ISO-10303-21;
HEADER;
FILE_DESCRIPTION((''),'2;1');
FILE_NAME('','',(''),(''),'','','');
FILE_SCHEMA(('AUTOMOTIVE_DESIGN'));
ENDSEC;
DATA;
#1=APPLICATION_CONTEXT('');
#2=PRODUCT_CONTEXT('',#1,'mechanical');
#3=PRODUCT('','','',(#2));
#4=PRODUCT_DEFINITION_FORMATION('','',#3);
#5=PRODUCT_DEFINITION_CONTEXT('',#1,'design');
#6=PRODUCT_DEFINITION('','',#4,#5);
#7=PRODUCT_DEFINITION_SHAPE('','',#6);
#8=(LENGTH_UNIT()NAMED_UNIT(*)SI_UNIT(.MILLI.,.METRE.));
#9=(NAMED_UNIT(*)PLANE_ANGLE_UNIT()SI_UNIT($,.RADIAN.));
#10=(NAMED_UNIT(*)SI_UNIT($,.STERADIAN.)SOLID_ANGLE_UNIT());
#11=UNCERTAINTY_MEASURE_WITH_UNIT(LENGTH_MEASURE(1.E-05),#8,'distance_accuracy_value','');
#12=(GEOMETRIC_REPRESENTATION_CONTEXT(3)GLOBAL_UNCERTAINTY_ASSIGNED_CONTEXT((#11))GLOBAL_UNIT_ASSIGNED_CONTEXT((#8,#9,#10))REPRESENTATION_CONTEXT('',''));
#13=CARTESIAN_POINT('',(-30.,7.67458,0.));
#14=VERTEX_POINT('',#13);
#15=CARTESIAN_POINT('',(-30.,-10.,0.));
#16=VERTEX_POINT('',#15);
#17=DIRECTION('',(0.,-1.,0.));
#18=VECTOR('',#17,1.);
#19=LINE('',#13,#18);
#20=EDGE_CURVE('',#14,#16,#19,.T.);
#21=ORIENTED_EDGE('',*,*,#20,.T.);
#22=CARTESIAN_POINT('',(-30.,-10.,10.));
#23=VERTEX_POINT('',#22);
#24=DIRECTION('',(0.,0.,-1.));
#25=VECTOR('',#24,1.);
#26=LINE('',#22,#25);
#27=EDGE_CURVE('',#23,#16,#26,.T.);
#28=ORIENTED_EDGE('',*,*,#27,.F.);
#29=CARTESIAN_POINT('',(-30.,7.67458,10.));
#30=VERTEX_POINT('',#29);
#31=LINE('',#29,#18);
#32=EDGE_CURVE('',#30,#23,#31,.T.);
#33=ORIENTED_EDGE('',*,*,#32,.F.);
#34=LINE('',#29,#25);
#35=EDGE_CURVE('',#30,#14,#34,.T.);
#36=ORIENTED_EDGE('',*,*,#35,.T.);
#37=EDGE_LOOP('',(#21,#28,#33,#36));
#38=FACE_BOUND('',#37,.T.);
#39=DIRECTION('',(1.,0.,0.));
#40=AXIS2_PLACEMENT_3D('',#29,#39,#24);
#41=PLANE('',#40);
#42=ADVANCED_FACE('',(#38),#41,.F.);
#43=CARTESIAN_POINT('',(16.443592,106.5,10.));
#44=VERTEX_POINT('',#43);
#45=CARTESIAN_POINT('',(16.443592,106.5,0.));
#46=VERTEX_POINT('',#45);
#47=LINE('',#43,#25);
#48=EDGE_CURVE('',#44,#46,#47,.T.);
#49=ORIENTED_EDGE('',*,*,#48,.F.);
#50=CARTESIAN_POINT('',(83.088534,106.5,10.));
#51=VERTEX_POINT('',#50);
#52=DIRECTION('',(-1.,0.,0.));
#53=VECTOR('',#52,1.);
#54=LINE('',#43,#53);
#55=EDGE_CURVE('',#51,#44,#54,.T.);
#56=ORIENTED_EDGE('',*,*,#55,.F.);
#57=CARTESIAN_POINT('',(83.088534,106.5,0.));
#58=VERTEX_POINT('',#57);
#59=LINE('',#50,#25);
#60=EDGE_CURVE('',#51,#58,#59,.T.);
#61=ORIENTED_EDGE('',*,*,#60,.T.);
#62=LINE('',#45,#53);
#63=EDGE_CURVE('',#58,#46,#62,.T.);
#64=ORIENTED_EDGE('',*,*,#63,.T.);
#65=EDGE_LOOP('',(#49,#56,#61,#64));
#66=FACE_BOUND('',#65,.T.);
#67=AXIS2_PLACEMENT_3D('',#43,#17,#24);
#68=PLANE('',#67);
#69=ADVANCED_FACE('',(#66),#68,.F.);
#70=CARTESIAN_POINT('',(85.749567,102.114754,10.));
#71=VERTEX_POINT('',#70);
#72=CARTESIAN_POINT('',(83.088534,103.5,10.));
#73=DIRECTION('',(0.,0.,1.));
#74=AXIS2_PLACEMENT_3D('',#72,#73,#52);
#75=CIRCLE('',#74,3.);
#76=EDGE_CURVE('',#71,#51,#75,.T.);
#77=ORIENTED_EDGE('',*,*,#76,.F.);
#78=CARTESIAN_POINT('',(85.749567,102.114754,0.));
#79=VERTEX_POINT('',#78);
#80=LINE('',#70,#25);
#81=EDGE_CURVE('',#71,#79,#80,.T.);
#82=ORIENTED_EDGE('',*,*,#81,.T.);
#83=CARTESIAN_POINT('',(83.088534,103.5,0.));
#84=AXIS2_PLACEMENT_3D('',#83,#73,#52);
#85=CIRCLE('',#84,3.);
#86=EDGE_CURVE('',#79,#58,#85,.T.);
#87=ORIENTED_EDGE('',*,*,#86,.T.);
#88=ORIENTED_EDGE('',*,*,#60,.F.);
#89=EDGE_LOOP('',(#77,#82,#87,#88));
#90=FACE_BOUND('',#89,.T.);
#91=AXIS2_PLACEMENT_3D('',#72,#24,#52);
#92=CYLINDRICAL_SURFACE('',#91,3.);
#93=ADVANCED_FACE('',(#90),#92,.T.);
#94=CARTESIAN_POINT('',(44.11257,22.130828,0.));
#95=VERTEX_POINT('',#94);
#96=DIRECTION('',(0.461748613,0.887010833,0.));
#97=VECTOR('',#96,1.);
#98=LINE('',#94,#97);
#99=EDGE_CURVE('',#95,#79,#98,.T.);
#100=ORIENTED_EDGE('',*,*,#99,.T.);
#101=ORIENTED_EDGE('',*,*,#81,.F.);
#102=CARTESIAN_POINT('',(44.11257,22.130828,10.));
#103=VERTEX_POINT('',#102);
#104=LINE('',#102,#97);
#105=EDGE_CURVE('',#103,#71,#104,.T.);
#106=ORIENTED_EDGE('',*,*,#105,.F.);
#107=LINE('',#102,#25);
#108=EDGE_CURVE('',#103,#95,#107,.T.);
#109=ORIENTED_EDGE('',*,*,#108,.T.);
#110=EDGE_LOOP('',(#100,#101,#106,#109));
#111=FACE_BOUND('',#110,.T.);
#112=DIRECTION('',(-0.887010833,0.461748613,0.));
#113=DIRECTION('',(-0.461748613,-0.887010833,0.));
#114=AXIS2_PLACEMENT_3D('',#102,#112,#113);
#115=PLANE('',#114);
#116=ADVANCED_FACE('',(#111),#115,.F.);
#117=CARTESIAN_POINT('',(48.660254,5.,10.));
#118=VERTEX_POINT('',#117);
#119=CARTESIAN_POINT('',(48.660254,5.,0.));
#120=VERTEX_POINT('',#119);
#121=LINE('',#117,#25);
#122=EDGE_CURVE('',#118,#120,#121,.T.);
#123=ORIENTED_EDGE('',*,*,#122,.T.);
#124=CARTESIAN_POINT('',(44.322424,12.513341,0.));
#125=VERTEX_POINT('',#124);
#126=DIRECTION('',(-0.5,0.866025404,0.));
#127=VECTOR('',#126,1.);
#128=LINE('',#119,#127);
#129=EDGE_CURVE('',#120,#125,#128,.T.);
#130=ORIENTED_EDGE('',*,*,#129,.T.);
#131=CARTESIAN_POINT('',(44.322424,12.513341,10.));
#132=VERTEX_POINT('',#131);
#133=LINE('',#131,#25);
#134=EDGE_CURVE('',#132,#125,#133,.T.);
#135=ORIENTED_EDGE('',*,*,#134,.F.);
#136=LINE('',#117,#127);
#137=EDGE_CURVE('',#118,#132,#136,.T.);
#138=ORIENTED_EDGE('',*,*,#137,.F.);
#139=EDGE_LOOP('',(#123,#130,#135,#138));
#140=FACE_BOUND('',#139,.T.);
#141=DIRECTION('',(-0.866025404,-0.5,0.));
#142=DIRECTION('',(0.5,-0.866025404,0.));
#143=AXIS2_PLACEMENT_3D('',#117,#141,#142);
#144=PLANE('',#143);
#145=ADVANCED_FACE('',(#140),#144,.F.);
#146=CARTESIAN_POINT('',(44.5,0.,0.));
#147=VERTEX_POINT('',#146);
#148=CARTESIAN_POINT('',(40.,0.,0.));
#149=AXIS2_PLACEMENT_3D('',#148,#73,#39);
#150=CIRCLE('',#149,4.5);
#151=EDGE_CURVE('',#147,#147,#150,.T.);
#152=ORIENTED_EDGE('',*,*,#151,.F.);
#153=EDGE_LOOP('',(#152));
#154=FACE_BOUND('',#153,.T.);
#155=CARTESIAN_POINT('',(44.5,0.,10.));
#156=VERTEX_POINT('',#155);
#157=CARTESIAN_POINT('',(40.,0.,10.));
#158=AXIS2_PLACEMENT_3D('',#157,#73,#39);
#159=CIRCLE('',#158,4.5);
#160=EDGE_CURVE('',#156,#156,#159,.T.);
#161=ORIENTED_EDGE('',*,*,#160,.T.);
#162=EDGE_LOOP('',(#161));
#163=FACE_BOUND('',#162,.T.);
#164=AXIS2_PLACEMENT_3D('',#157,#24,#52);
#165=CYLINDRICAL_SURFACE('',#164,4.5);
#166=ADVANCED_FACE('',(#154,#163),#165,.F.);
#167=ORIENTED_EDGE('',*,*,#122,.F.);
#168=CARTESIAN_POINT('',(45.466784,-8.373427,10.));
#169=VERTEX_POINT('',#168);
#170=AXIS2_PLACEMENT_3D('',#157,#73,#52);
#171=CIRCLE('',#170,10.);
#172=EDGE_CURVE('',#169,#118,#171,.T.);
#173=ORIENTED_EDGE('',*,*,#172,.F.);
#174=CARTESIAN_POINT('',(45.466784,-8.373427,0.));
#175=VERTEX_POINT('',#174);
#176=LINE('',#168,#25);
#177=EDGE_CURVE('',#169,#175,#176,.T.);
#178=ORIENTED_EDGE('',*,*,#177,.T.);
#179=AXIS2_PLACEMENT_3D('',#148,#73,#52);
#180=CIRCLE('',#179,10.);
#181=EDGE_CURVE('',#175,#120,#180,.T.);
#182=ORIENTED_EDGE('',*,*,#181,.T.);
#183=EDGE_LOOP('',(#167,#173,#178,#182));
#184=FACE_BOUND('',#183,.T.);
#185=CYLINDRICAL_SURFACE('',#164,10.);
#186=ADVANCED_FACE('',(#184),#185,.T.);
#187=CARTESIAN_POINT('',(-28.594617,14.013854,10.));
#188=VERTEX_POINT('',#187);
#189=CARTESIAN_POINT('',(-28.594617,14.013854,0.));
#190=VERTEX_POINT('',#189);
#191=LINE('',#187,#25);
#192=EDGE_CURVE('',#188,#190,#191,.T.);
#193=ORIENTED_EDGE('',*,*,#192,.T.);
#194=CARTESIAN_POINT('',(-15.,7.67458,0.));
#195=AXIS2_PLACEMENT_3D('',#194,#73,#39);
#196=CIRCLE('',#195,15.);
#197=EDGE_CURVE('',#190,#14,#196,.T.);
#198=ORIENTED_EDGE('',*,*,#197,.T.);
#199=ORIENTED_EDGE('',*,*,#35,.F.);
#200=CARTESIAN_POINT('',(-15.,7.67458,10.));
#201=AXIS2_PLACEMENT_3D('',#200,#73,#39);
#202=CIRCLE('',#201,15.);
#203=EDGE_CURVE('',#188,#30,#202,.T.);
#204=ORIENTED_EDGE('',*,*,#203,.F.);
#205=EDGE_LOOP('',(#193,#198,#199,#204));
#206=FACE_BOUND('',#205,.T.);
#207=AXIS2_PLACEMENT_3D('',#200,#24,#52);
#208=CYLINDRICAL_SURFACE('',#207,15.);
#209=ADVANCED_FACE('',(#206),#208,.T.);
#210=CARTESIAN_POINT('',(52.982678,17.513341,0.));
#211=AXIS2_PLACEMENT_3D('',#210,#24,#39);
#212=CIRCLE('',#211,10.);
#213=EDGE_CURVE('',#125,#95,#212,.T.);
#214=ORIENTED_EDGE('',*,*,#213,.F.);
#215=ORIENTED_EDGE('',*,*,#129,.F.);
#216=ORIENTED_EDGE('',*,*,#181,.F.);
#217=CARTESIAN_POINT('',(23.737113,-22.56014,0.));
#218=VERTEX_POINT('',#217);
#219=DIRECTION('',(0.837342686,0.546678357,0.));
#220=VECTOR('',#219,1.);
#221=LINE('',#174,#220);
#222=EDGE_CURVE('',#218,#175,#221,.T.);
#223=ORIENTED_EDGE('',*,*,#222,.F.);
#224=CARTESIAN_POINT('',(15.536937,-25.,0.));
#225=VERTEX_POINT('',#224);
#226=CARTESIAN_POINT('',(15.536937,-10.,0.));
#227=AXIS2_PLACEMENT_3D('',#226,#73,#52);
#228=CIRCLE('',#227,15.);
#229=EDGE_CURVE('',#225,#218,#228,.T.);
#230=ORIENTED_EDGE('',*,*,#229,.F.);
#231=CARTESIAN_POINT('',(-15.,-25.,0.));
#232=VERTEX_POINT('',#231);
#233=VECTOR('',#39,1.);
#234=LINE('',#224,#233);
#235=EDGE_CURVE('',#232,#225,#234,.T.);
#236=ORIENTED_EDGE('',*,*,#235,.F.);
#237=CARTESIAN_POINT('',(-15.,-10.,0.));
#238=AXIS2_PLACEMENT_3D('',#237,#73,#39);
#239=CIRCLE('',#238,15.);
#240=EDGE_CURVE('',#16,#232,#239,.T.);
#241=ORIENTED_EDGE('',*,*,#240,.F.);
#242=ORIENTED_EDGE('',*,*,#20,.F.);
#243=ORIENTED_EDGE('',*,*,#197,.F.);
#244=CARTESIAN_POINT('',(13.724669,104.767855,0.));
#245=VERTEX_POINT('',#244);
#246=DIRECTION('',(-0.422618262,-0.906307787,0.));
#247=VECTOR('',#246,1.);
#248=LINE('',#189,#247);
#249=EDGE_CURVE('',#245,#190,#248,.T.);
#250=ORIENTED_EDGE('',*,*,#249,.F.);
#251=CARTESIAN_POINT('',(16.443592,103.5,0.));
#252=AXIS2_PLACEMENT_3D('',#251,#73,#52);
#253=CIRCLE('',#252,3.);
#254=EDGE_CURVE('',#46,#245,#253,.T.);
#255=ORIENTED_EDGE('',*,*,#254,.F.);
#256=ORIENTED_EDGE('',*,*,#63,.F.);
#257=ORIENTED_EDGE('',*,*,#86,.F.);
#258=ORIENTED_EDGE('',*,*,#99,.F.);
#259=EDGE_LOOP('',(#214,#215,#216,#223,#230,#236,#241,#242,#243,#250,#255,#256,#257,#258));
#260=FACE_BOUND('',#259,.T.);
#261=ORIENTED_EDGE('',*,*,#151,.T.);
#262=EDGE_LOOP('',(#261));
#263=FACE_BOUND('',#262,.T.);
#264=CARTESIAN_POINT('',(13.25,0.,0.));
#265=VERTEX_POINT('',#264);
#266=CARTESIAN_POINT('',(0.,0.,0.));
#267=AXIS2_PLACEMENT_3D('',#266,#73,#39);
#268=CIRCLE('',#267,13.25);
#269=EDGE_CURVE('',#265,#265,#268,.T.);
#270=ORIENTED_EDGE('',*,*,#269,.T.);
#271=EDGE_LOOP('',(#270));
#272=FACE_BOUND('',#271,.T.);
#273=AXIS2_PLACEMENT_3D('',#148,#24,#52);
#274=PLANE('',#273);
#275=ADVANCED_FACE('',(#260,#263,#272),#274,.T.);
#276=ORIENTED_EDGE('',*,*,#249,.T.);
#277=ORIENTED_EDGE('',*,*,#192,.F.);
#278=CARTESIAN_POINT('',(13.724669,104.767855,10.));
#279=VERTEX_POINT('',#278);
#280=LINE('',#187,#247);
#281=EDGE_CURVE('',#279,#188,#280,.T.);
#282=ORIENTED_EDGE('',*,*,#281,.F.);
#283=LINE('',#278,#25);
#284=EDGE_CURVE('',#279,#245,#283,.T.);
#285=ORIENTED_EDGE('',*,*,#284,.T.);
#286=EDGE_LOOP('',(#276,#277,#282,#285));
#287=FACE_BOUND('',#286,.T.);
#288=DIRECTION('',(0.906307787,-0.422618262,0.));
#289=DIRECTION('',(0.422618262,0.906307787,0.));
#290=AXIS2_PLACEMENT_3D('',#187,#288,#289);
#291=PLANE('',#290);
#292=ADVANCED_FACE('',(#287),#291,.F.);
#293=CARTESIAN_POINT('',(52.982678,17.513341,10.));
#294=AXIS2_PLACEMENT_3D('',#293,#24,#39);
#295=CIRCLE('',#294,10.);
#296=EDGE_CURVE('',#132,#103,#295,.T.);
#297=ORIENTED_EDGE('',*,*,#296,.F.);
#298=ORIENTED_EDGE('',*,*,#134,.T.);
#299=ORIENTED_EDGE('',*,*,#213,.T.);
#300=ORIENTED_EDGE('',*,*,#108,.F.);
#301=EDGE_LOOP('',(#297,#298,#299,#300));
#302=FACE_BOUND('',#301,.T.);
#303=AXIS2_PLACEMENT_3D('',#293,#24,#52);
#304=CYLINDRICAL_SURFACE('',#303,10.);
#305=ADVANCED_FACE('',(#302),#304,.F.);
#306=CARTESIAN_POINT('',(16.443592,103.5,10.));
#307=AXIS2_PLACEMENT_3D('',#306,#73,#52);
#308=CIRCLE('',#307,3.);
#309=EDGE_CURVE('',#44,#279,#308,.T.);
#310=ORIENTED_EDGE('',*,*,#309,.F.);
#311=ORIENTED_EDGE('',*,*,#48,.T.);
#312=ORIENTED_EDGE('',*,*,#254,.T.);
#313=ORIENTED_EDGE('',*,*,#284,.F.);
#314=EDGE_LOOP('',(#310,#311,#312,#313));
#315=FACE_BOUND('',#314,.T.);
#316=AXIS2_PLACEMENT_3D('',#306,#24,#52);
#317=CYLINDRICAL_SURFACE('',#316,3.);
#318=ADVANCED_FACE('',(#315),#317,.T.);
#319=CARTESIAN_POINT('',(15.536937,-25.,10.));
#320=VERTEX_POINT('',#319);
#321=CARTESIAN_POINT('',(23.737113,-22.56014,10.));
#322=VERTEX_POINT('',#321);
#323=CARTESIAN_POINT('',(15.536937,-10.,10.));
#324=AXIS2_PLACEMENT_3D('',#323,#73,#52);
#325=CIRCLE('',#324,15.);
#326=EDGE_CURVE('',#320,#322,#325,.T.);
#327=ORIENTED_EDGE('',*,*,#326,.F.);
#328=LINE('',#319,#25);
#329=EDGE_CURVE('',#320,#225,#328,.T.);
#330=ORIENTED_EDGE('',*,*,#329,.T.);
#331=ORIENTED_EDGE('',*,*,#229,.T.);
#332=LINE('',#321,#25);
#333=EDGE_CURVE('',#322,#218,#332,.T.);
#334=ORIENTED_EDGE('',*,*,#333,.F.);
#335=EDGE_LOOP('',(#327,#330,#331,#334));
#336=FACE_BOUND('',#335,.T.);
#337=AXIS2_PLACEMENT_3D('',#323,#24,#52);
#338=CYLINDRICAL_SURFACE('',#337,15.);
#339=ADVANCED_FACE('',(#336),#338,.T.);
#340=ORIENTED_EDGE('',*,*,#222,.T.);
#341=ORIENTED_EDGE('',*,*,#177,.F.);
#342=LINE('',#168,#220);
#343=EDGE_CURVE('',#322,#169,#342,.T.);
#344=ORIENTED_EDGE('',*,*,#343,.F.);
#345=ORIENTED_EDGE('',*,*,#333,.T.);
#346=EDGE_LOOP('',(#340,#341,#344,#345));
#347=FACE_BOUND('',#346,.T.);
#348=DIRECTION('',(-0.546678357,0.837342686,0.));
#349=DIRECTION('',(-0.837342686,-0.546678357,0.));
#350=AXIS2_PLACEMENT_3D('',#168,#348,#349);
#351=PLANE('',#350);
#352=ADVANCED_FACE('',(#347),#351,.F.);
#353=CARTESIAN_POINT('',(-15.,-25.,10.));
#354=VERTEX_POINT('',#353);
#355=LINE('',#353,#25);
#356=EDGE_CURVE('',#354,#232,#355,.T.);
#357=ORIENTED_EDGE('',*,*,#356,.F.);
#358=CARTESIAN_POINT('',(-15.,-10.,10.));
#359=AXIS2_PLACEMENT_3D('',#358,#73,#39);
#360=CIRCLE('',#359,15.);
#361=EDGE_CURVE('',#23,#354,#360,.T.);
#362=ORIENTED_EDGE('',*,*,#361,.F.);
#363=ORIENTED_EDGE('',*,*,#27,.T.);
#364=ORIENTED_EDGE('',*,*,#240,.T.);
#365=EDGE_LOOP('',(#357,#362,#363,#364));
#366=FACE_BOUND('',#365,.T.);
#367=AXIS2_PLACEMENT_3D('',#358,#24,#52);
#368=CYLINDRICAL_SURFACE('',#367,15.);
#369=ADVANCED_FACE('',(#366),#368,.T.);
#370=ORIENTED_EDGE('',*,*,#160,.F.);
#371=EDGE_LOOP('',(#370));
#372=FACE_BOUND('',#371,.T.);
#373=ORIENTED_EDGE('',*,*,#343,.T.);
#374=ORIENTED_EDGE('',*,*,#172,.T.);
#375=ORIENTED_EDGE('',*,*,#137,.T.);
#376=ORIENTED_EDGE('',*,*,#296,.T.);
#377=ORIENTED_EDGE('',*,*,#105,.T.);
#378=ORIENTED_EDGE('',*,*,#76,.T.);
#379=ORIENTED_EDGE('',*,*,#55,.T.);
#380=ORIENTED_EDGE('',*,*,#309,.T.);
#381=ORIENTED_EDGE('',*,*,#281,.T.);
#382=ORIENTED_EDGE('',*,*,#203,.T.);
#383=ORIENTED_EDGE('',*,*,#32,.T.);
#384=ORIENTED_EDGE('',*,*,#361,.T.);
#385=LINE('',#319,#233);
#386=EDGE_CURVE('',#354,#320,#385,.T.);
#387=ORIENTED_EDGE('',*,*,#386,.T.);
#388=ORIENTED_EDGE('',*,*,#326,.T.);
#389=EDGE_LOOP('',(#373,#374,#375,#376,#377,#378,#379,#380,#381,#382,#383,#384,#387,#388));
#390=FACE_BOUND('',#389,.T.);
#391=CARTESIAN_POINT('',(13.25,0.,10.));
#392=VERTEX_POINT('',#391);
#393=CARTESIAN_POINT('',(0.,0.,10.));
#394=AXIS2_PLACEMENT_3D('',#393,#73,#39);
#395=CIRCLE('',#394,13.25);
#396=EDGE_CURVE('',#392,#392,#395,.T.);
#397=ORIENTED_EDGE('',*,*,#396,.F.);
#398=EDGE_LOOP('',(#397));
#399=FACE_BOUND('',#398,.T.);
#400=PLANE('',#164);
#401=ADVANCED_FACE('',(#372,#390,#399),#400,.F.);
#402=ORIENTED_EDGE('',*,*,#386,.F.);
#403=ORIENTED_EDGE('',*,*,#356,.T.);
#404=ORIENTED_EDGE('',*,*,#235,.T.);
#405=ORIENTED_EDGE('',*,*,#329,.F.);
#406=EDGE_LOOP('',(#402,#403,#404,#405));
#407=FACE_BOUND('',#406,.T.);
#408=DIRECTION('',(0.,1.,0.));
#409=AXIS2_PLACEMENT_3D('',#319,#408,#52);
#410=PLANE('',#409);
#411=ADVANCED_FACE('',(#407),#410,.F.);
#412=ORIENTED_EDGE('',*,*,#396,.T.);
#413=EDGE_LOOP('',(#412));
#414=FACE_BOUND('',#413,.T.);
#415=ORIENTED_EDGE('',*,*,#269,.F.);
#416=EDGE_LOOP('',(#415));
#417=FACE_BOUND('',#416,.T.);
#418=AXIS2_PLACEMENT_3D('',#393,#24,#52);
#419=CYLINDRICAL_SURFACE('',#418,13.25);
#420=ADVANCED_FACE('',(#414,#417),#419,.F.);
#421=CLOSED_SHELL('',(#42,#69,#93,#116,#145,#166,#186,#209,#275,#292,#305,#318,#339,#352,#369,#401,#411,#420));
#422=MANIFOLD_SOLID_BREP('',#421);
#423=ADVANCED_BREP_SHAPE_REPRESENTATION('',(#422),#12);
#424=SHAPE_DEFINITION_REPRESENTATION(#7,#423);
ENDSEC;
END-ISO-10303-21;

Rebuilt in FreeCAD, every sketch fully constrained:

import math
import FreeCAD as App
import Part
import Sketcher

V = App.Vector
Q = App.Units.Quantity

doc = App.newDocument("Part")
body = doc.addObject("PartDesign::Body", "Body")

sketch1 = body.newObject("Sketcher::SketchObject", "Sketch")
sketch1.AttachmentSupport = (doc.getObject("XY_Plane"), [""])
sketch1.MapMode = "FlatFace"
sketch1.addGeometry(Part.LineSegment(V(23.7, -22.6, 0), V(45.5, -8.4, 0)), False)
sketch1.addGeometry(Part.ArcOfCircle(Part.Circle(V(40, 0, 0), V(0, 0, 1), 10), math.radians(-57), math.radians(30)), False)
sketch1.addGeometry(Part.LineSegment(V(48.7, 5, 0), V(44.3, 12.5, 0)), False)
sketch1.addGeometry(Part.ArcOfCircle(Part.Circle(V(53, 17.5, 0), V(0, 0, 1), 10), math.radians(152), math.radians(210)), False)
sketch1.addGeometry(Part.LineSegment(V(44.1, 22.1, 0), V(85.7, 102.1, 0)), False)
sketch1.addGeometry(Part.ArcOfCircle(Part.Circle(V(83.1, 103.5, 0), V(0, 0, 1), 3), math.radians(-28), math.radians(90)), False)
sketch1.addGeometry(Part.LineSegment(V(83.1, 106.5, 0), V(16.4, 106.5, 0)), False)
sketch1.addGeometry(Part.ArcOfCircle(Part.Circle(V(16.4, 103.5, 0), V(0, 0, 1), 3), math.radians(90), math.radians(155)), False)
sketch1.addGeometry(Part.LineSegment(V(13.7, 104.8, 0), V(-28.6, 14, 0)), False)
sketch1.addGeometry(Part.ArcOfCircle(Part.Circle(V(-15, 7.7, 0), V(0, 0, 1), 15), math.radians(155), math.radians(180)), False)
sketch1.addGeometry(Part.LineSegment(V(-30, 7.7, 0), V(-30, -10, 0)), False)
sketch1.addGeometry(Part.ArcOfCircle(Part.Circle(V(-15, -10, 0), V(0, 0, 1), 15), math.radians(180), math.radians(270)), False)
sketch1.addGeometry(Part.LineSegment(V(-15, -25, 0), V(15.5, -25, 0)), False)
sketch1.addGeometry(Part.ArcOfCircle(Part.Circle(V(15.5, -10, 0), V(0, 0, 1), 15), math.radians(-90), math.radians(-57)), False)
sketch1.addGeometry(Part.Circle(V(40, 0, 0), V(0, 0, 1), 4.5), False)
sketch1.addGeometry(Part.Circle(V(0, 0, 0), V(0, 0, 1), 13.2), False)
sketch1.addConstraint(Sketcher.Constraint("Tangent", 0, 2, 1, 1))
sketch1.addConstraint(Sketcher.Constraint("Tangent", 1, 2, 2, 1))
sketch1.addConstraint(Sketcher.Constraint("Tangent", 2, 2, 3, 2))
sketch1.addConstraint(Sketcher.Constraint("Tangent", 3, 1, 4, 1))
sketch1.addConstraint(Sketcher.Constraint("Tangent", 4, 2, 5, 1))
sketch1.addConstraint(Sketcher.Constraint("Tangent", 5, 2, 6, 1))
sketch1.addConstraint(Sketcher.Constraint("Tangent", 6, 2, 7, 1))
sketch1.addConstraint(Sketcher.Constraint("Tangent", 7, 2, 8, 1))
sketch1.addConstraint(Sketcher.Constraint("Tangent", 8, 2, 9, 1))
sketch1.addConstraint(Sketcher.Constraint("Tangent", 9, 2, 10, 1))
sketch1.addConstraint(Sketcher.Constraint("Tangent", 10, 2, 11, 1))
sketch1.addConstraint(Sketcher.Constraint("Tangent", 11, 2, 12, 1))
sketch1.addConstraint(Sketcher.Constraint("Tangent", 12, 2, 13, 1))
sketch1.addConstraint(Sketcher.Constraint("Tangent", 13, 2, 0, 1))
sketch1.addConstraint(Sketcher.Constraint("Horizontal", 6))
sketch1.addConstraint(Sketcher.Constraint("Vertical", 10))
sketch1.addConstraint(Sketcher.Constraint("Horizontal", 12))
sketch1.addConstraint(Sketcher.Constraint("Coincident", 15, 3, -1, 1))
sketch1.addConstraint(Sketcher.Constraint("Coincident", 14, 3, 1, 3))
sketch1.addConstraint(Sketcher.Constraint("Equal", 1, 3))
sketch1.addConstraint(Sketcher.Constraint("Equal", 5, 7))
sketch1.addConstraint(Sketcher.Constraint("Equal", 9, 11))
sketch1.addConstraint(Sketcher.Constraint("Equal", 11, 13))
sketch1.addConstraint(Sketcher.Constraint("PointOnObject", 1, 3, -1))
sketch1.addConstraint(Sketcher.Constraint("Diameter", 14, Q("9 mm")))
sketch1.addConstraint(Sketcher.Constraint("Radius", 1, Q("10 mm")))
sketch1.addConstraint(Sketcher.Constraint("Radius", 5, Q("3 mm")))
sketch1.addConstraint(Sketcher.Constraint("Radius", 9, Q("15 mm")))
sketch1.addConstraint(Sketcher.Constraint("Diameter", 15, Q("26.5 mm")))
sketch1.addConstraint(Sketcher.Constraint("Angle", 2, Q("120 deg")))
sketch1.addConstraint(Sketcher.Constraint("Angle", 8, Q("-115 deg")))
sketch1.addConstraint(Sketcher.Constraint("DistanceX", -1, 1, 1, 3, Q("40 mm")))
sketch1.addConstraint(Sketcher.Constraint("DistanceX", 9, 3, -1, 1, Q("15 mm")))
sketch1.addConstraint(Sketcher.Constraint("DistanceY", 11, 3, -1, 1, Q("10 mm")))
sketch1.addConstraint(Sketcher.Constraint("Angle", 4, Q("62.5 deg")))
sketch1.addConstraint(Sketcher.Constraint("DistanceY", -1, 1, 5, 3, Q("103.5 mm")))
sketch1.addConstraint(Sketcher.Constraint("DistanceY", 10, 2, 10, 1, Q("17.67458 mm")))
sketch1.addConstraint(Sketcher.Constraint("DistanceX", 7, 2, 4, 2, Q("72.024898 mm")))
sketch1.addConstraint(Sketcher.Constraint("Distance", 0, Q("25.95075 mm")))
pad1 = body.newObject("PartDesign::Pad", "Pad")
pad1.Profile = sketch1
pad1.Length = 10

doc.recompute()
